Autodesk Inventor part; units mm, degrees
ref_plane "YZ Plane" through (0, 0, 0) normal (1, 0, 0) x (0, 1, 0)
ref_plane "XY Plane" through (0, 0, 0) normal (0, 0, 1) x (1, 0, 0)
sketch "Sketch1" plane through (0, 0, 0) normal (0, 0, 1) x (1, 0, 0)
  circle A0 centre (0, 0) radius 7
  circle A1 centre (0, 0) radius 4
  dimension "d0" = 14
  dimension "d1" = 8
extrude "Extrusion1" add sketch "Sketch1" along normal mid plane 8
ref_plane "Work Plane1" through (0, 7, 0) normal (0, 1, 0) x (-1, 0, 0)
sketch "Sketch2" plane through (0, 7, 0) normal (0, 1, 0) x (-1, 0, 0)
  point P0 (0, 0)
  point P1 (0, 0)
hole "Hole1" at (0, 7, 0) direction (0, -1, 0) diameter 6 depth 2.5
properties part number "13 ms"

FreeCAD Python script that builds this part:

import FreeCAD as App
import Part
import Sketcher
from FreeCAD import Vector

doc = App.newDocument("Part")
body = doc.addObject("PartDesign::Body", "Body")

# Sketch on XY plane
sketch1 = body.newObject("Sketcher::SketchObject", "Sketch")
sketch1.AttachmentSupport = (doc.getObject("XY_Plane"), [""])
sketch1.MapMode = "FlatFace"
sketch1.addGeometry(Part.Circle(Vector(0, 0, 0), Vector(0, 0, 1), 7), False)
sketch1.addGeometry(Part.Circle(Vector(0, 0, 0), Vector(0, 0, 1), 4), False)
sketch1.addConstraint(Sketcher.Constraint("Coincident", 0, 3, -1, 1))
sketch1.addConstraint(Sketcher.Constraint("Coincident", 1, 3, -1, 1))
sketch1.addConstraint(Sketcher.Constraint("Diameter", 0, 14.0))
sketch1.addConstraint(Sketcher.Constraint("Diameter", 1, 8.0))
pad1 = body.newObject("PartDesign::Pad", "Pad")
pad1.Profile = sketch1
pad1.Length = 8
pad1.Midplane = True

# Sketch on XZ plane
sketch2 = body.newObject("Sketcher::SketchObject", "Sketch001")
sketch2.AttachmentSupport = (doc.getObject("XZ_Plane"), [""])
sketch2.MapMode = "FlatFace"
sketch2.AttachmentOffset = App.Placement(Vector(0, 0, -7), App.Rotation())
sketch2.addGeometry(Part.Circle(Vector(0, 0, 0), Vector(0, 0, 1), 3), False)
sketch2.addConstraint(Sketcher.Constraint("Coincident", 0, 3, -1, 1))
sketch2.addConstraint(Sketcher.Constraint("Diameter", 0, 6.0))
doc.recompute()
hole = body.newObject("PartDesign::Hole", "Hole")
hole.Profile = sketch2
hole.ThreadType = "None"
hole.Diameter = 6
hole.DepthType = "Dimension"
hole.Depth = 2.5
hole.DrillPoint = "Flat"
hole.Reversed = True

doc.recompute()
